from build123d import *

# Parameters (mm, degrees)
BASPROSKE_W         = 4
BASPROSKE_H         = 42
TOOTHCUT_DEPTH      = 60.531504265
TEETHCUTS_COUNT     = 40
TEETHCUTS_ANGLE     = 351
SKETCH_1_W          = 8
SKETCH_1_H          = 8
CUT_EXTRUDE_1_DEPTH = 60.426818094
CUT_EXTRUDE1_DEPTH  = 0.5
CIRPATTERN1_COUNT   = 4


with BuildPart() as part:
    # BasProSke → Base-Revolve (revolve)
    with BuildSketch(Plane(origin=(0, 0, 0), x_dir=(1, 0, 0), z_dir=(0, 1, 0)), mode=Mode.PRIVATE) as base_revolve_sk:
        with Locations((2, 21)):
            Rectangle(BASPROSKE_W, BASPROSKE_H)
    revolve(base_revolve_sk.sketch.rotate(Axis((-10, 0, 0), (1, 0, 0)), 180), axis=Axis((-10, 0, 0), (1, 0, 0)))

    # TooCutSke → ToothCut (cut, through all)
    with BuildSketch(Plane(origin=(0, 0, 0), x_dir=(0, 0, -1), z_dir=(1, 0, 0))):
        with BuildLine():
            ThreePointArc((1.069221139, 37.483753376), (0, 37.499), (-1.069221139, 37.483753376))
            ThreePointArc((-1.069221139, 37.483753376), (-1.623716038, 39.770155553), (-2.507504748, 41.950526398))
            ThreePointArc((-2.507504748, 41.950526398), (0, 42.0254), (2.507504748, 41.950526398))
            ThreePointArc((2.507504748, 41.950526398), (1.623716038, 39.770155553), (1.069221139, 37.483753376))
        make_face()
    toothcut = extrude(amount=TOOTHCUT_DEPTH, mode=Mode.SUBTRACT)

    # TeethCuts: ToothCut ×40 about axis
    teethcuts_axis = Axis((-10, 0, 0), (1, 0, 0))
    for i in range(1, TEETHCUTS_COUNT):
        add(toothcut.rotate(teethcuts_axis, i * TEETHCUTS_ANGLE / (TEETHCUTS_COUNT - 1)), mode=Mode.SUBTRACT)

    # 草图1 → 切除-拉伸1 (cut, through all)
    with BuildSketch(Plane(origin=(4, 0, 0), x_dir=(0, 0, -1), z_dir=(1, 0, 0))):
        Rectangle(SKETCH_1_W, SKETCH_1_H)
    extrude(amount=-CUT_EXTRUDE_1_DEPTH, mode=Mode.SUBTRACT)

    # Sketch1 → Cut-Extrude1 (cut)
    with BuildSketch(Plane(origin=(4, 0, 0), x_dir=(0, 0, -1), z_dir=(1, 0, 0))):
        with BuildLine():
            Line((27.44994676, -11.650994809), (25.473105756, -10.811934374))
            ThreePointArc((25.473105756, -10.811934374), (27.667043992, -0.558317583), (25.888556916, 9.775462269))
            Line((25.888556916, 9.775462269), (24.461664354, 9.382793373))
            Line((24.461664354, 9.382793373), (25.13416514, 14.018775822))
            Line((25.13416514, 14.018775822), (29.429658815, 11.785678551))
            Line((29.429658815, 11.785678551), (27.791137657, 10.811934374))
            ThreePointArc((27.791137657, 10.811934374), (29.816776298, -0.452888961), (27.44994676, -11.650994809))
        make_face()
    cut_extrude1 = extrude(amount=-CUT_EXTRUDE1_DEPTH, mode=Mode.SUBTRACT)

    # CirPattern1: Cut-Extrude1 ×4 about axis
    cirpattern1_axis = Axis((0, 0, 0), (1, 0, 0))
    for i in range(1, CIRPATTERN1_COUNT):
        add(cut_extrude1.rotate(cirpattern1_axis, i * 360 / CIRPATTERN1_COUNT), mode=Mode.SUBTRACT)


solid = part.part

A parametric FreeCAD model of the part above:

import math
import FreeCAD as App
import Part
import Sketcher

V = App.Vector
Q = App.Units.Quantity


def add_polygon(sketch, points):
    """Adds a closed chain of lines whose ends are joined by coincident constraints."""
    first, n = sketch.GeometryCount, len(points)
    for a, b in zip(points, points[1:] + points[:1]):
        sketch.addGeometry(Part.LineSegment(App.Vector(*a, 0), App.Vector(*b, 0)), False)
    for i in range(n):
        sketch.addConstraint(Sketcher.Constraint("Coincident", first + i, 2, first + (i + 1) % n, 1))

doc = App.newDocument("Part")
body = doc.addObject("PartDesign::Body", "Body")

# Sketch on XZ plane
sketch1 = body.newObject("Sketcher::SketchObject", "Sketch")
sketch1.AttachmentSupport = (doc.getObject("XZ_Plane"), [""])
sketch1.MapMode = "FlatFace"
add_polygon(sketch1, [(0, -42), (0, 0), (4, 0), (4, -42)])  # lines 0-3
sketch1.addConstraint([
    Sketcher.Constraint("Vertical", 0),
    Sketcher.Constraint("Horizontal", 1),
    Sketcher.Constraint("Vertical", 2),
    Sketcher.Constraint("Horizontal", 3),
    Sketcher.Constraint("Coincident", 0, 2, -1, 1),
    Sketcher.Constraint("DistanceX", 1, 1, 1, 2, Q("4 mm")),
    Sketcher.Constraint("DistanceY", 0, 1, 0, 2, Q("42 mm")),
])
revolution = body.newObject("PartDesign::Revolution", "Revolution")
revolution.Profile = sketch1
revolution.ReferenceAxis = (sketch1, ["H_Axis"])
revolution.Angle = 360

# Sketch on YZ plane
sketch2 = body.newObject("Sketcher::SketchObject", "Sketch001")
sketch2.AttachmentSupport = (doc.getObject("YZ_Plane"), [""])
sketch2.MapMode = "FlatFace"
sketch2.addGeometry([
    Part.ArcOfCircle(Part.Circle(V(0, 0, 0), V(0, 0, 1), 37.5), math.radians(-1.63), math.radians(1.63)),
    Part.ArcOfCircle(Part.Circle(V(34.9, -16.9, 0), V(0, 0, 1), 16), math.radians(63.72), math.radians(80.58)),
    Part.ArcOfCircle(Part.Circle(V(0, 0, 0), V(0, 0, 1), 42), math.radians(-3.42), math.radians(3.42)),
    Part.ArcOfCircle(Part.Circle(V(34.9, 16.9, 0), V(0, 0, 1), 16), math.radians(-80.58), math.radians(-63.72)),
], False)
sketch2.addConstraint([
    Sketcher.Constraint("Coincident", 0, 1, 1, 2),
    Sketcher.Constraint("Coincident", 1, 1, 2, 1),
    Sketcher.Constraint("Coincident", 2, 2, 3, 2),
    Sketcher.Constraint("Coincident", 3, 1, 0, 2),
    Sketcher.Constraint("Coincident", 0, 3, -1, 1),
    Sketcher.Constraint("Coincident", 2, 3, -1, 1),
    Sketcher.Constraint("Equal", 1, 3),
    Sketcher.Constraint("Symmetric", 1, 3, 3, 3, -1),
    Sketcher.Constraint("Radius", 1, Q("16 mm")),
    Sketcher.Constraint("Radius", 0, Q("37.499 mm")),
    Sketcher.Constraint("Radius", 2, Q("42.0254 mm")),
    Sketcher.Constraint("DistanceY", 0, 1, -1, 1, Q("1.069221 mm")),
    Sketcher.Constraint("DistanceX", 1, 3, 0, 1, Q("2.617578 mm")),
])
pocket1 = body.newObject("PartDesign::Pocket", "Pocket")
pocket1.Profile = sketch2
pocket1.Type = "ThroughAll"
pocket1.Reversed = True
doc.recompute()

polarpattern = body.newObject("PartDesign::PolarPattern", "PolarPattern")
polarpattern.Originals = [pocket1]
polarpattern.Axis = (doc.getObject("X_Axis"), [""])
polarpattern.Angle = 360
polarpattern.Occurrences = 40
body.Tip = polarpattern

# Sketch on YZ plane
sketch3 = body.newObject("Sketcher::SketchObject", "Sketch002")
sketch3.AttachmentSupport = (doc.getObject("YZ_Plane"), [""])
sketch3.MapMode = "FlatFace"
sketch3.AttachmentOffset = App.Placement(V(0, 0, 4), App.Rotation())
add_polygon(sketch3, [(4, 4), (-4, 4), (-4, -4), (4, -4)])  # lines 0-3
sketch3.addConstraint([
    Sketcher.Constraint("Horizontal", 0),
    Sketcher.Constraint("Vertical", 1),
    Sketcher.Constraint("Horizontal", 2),
    Sketcher.Constraint("Vertical", 3),
    Sketcher.Constraint("Symmetric", 0, 2, 2, 2, -1, 1),
    Sketcher.Constraint("Equal", 2, 1),
    Sketcher.Constraint("DistanceX", 0, 2, 0, 1, Q("8 mm")),
])
pocket2 = body.newObject("PartDesign::Pocket", "Pocket001")
pocket2.Profile = sketch3
pocket2.Type = "ThroughAll"

# Sketch on YZ plane
sketch4 = body.newObject("Sketcher::SketchObject", "Sketch003")
sketch4.AttachmentSupport = (doc.getObject("YZ_Plane"), [""])
sketch4.MapMode = "FlatFace"
sketch4.AttachmentOffset = App.Placement(V(0, 0, 4), App.Rotation())
sketch4.addGeometry([
    Part.LineSegment(V(-10.8, -25.5, 0), V(-11.7, -27.4, 0)),  # 0
    Part.ArcOfCircle(Part.Circle(V(0, 0, 0), V(0, 0, 1), 29.8), math.radians(-113), math.radians(-69)),  # 1
    Part.LineSegment(V(10.8, -27.8, 0), V(11.8, -29.4, 0)),  # 2
    Part.LineSegment(V(11.8, -29.4, 0), V(14, -25.1, 0)),  # 3
    Part.LineSegment(V(14, -25.1, 0), V(9.4, -24.5, 0)),  # 4
    Part.LineSegment(V(9.4, -24.5, 0), V(9.8, -25.9, 0)),  # 5
    Part.ArcOfCircle(Part.Circle(V(0, 0, 0), V(0, 0, 1), 27.7), math.radians(-113), math.radians(-69)),  # 6
], False)
sketch4.addConstraint([
    Sketcher.Constraint("Coincident", 0, 2, 1, 1),
    Sketcher.Constraint("Coincident", 1, 2, 2, 1),
    Sketcher.Constraint("Coincident", 2, 2, 3, 1),
    Sketcher.Constraint("Coincident", 3, 2, 4, 1),
    Sketcher.Constraint("Coincident", 4, 2, 5, 1),
    Sketcher.Constraint("Coincident", 5, 2, 6, 2),
    Sketcher.Constraint("Coincident", 6, 1, 0, 1),
    Sketcher.Constraint("Coincident", 1, 3, -1, 1),
    Sketcher.Constraint("Coincident", 6, 3, -1, 1),
    Sketcher.Constraint("Radius", 1, Q("29.820216 mm")),
    Sketcher.Constraint("Radius", 6, Q("27.672677 mm")),
    Sketcher.Constraint("DistanceY", 3, 2, 4, 2, Q("0.672501 mm")),
    Sketcher.Constraint("DistanceY", 2, 2, 5, 2, Q("3.541102 mm")),
    Sketcher.Constraint("Distance", 3, Q("4.84128 mm")),
    Sketcher.Constraint("DistanceX", -1, 1, 2, 2, Q("11.785679 mm")),
    Sketcher.Constraint("DistanceY", 2, 2, -1, 1, Q("29.429659 mm")),
    Sketcher.Constraint("DistanceX", 0, 2, 1, 2, Q("22.462929 mm")),
    Sketcher.Constraint("DistanceY", 1, 2, 0, 2, Q("0.341191 mm")),
    Sketcher.Constraint("DistanceX", 1, 2, 3, 2, Q("3.206841 mm")),
    Sketcher.Constraint("DistanceX", 4, 2, 1, 2, Q("1.429141 mm")),
    Sketcher.Constraint("DistanceX", 0, 2, 6, 1, Q("0.83906 mm")),
])
pocket3 = body.newObject("PartDesign::Pocket", "Pocket002")
pocket3.Profile = sketch4
pocket3.Length = 0.5
doc.recompute()

polarpattern2 = body.newObject("PartDesign::PolarPattern", "PolarPattern001")
polarpattern2.Originals = [pocket3]
polarpattern2.Axis = (doc.getObject("X_Axis"), [""])
polarpattern2.Angle = 360
polarpattern2.Occurrences = 4
body.Tip = polarpattern2

doc.recompute()
